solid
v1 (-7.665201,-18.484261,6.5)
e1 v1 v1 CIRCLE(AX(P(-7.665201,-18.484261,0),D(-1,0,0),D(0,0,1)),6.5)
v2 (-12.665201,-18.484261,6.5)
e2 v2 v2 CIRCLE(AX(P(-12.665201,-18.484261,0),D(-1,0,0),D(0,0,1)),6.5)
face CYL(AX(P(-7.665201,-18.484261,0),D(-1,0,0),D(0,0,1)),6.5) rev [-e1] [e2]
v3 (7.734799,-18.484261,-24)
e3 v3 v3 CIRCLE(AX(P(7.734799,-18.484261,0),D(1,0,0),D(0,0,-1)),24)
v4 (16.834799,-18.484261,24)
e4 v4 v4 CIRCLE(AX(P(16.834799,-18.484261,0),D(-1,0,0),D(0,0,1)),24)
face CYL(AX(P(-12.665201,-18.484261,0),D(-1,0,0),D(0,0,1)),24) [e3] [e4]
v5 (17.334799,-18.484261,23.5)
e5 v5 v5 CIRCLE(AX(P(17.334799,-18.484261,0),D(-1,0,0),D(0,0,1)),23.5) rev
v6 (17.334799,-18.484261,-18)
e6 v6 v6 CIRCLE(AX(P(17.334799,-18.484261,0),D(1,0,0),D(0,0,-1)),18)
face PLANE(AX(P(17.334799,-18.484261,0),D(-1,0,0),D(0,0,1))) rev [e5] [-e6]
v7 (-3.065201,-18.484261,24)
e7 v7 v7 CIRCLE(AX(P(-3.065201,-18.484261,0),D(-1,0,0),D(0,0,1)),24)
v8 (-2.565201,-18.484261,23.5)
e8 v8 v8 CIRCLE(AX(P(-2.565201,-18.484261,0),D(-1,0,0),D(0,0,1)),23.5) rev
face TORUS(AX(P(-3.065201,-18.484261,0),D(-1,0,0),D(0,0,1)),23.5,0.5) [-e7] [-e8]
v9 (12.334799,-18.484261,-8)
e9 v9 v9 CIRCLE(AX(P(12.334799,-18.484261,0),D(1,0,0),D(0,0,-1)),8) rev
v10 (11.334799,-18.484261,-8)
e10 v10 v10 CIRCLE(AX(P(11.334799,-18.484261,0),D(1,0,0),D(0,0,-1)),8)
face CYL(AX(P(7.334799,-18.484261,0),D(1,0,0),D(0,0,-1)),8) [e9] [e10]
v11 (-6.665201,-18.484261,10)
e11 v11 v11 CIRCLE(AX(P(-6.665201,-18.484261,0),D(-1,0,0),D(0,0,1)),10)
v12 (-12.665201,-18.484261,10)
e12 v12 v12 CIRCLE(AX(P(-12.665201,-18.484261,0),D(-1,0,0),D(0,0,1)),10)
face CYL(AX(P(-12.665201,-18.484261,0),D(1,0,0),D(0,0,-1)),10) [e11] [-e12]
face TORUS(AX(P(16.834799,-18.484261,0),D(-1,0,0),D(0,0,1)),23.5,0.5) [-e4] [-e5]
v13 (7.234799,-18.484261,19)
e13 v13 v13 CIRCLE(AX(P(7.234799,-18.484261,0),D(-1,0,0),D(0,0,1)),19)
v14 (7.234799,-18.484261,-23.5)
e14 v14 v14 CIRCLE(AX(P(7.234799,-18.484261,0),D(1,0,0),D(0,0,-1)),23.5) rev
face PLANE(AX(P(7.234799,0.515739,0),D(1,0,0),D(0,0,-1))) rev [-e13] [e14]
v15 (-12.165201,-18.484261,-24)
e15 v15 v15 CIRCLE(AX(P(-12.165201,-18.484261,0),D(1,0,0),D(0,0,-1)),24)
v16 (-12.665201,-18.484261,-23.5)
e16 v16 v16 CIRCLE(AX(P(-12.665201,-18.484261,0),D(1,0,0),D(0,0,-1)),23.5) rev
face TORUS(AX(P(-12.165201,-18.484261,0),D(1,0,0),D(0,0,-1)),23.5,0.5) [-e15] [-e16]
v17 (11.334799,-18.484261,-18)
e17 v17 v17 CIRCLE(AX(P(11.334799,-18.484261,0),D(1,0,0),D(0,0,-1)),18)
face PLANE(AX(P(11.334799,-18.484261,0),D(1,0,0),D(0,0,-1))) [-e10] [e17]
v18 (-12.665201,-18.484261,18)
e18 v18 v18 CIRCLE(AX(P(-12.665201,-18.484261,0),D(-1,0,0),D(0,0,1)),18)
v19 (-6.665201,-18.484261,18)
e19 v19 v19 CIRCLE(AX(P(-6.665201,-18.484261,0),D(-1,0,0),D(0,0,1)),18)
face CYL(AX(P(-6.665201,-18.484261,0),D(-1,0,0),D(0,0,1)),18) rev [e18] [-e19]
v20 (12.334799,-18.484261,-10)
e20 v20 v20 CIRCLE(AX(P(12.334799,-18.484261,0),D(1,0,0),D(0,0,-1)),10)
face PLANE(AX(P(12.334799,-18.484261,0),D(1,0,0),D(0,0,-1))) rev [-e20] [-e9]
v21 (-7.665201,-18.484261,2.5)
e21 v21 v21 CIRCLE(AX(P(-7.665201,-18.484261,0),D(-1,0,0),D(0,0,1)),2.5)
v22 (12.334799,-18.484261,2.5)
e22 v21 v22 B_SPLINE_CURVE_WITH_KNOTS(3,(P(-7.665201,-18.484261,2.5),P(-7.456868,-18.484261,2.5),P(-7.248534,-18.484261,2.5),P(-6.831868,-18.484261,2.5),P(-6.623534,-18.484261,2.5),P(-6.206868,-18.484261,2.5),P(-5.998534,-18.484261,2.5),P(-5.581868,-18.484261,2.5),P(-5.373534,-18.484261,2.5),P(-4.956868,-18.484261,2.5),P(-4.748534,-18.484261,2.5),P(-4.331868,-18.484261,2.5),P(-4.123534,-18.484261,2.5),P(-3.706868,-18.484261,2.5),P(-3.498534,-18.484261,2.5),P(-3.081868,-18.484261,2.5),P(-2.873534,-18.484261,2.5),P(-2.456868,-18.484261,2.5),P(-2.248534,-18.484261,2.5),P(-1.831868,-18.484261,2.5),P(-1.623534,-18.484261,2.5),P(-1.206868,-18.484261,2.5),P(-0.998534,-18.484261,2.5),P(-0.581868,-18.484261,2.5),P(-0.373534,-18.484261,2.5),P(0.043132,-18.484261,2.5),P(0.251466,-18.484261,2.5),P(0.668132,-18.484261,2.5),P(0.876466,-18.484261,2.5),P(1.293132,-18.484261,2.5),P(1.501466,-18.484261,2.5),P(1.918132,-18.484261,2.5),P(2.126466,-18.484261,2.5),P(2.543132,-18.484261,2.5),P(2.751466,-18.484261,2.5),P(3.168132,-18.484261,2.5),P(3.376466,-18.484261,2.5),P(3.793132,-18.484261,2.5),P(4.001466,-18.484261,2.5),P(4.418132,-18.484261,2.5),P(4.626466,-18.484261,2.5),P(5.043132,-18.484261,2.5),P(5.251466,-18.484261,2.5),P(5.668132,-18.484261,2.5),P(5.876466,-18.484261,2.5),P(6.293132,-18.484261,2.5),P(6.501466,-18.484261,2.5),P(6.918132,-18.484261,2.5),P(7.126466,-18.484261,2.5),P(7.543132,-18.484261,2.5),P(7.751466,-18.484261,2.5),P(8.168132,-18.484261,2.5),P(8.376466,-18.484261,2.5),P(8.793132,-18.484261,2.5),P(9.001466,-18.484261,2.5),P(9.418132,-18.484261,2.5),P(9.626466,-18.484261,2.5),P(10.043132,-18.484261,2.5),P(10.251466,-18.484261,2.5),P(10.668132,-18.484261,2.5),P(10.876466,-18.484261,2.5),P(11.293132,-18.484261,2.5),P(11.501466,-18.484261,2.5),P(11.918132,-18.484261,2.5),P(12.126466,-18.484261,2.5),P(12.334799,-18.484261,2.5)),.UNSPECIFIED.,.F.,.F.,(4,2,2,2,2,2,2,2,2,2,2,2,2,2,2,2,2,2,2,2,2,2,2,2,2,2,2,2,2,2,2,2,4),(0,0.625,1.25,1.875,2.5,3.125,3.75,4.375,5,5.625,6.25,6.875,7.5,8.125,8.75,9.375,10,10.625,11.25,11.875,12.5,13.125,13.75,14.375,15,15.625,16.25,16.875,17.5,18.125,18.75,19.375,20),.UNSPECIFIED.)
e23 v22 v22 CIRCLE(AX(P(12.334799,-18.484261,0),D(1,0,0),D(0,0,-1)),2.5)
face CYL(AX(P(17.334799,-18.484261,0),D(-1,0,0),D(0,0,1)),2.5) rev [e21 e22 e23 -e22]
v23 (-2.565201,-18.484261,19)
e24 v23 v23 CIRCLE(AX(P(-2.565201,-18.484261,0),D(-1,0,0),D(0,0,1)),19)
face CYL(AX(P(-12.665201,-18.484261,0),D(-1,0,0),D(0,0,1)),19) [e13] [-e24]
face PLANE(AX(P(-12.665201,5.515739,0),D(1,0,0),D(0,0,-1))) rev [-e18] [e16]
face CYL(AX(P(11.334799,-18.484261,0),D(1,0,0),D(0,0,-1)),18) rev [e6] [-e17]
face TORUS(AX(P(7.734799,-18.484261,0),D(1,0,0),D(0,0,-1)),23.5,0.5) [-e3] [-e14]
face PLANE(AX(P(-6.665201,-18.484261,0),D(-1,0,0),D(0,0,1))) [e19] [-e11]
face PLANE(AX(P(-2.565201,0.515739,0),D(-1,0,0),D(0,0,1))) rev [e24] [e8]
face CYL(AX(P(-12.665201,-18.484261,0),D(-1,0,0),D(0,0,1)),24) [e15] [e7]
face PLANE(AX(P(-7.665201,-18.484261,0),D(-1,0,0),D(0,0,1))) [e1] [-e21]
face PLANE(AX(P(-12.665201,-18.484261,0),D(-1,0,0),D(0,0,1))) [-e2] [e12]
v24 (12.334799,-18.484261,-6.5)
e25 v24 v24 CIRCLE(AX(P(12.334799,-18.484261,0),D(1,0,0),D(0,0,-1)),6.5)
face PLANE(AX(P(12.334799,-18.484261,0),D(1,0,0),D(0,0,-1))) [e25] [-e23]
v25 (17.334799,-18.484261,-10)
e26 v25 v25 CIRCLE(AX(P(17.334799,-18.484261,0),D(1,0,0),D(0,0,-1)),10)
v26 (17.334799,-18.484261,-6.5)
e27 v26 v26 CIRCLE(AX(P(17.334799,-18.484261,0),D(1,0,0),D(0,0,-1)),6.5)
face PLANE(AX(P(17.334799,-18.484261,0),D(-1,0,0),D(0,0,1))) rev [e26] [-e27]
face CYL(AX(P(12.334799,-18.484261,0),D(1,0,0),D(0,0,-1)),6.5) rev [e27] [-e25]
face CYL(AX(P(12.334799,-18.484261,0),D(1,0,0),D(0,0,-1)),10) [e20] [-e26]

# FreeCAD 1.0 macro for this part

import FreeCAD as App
import Part
import Sketcher

V = App.Vector


def edges_at(feature, points):
    """Names of the edges that pass closest to the given points."""
    edges = feature.Shape.Edges
    near = lambda p: min(range(len(edges)), key=lambda i: edges[i].distToShape(Part.Vertex(*p))[0])
    return sorted({f"Edge{near(p) + 1}" for p in points})


def add_polygon(sketch, points):
    """Adds a closed chain of lines whose ends are joined by coincident constraints."""
    first, n = sketch.GeometryCount, len(points)
    for a, b in zip(points, points[1:] + points[:1]):
        sketch.addGeometry(Part.LineSegment(App.Vector(*a, 0), App.Vector(*b, 0)), False)
    for i in range(n):
        sketch.addConstraint(Sketcher.Constraint("Coincident", first + i, 2, first + (i + 1) % n, 1))

doc = App.newDocument("Part")
params = doc.addObject("Spreadsheet::Sheet", "Params")
for row, (alias, value) in enumerate([
    ("sketch1_width", "30 mm"),
    ("sketch1_height", "5 mm"),
    ("sketch1_height2", "24 mm"),
    ("sketch1_width2", "9.8 mm"),
    ("revolution_angle", "360 deg"),
    ("sketch2_diameter", "4 mm"),
    ("fillet_radius", "0.5 mm"),
    ("sketch3_diameter", "36 mm"),
    ("sketch3_diameter2", "12 mm"),
    ("pocket2_length", "6 mm"),
    ("sketch4_diameter", "36 mm"),
    ("pocket3_length", "6 mm"),
    ("sketch5_diameter", "20 mm"),
    ("pad1_length", "6 mm"),
    ("sketch6_diameter", "16 mm"),
    ("pad2_length", "10 mm"),
    ("sketch7_diameter", "13 mm"),
    ("pocket4_length", "5 mm"),
    ("sketch8_diameter", "20 mm"),
    ("pad3_length", "5 mm"),
    ("sketch9_diameter", "13 mm"),
    ("pocket5_length", "5 mm"),
    ("sketch10_diameter", "5 mm"),
], start=1):
    params.set(f"A{row}", alias)
    params.set(f"B{row}", "=" + value)
    params.setAlias(f"B{row}", alias)

body = doc.addObject("PartDesign::Body", "Body")

# Sketch on XY plane
sketch1 = body.newObject("Sketcher::SketchObject", "Sketch")
sketch1.AttachmentSupport = (doc.getObject("XY_Plane"), [""])
sketch1.MapMode = "FlatFace"
add_polygon(sketch1, [(7, 1), (-3, 1), (-3, 6), (-13, 6), (-13, -18), (17, -18), (17, 6), (7, 6)])  # lines 0-7
sketch1.addGeometry(Part.LineSegment(V(-13, -18, 0), V(17, -18, 0)), True)  # axis
sketch1.addConstraint([
    Sketcher.Constraint("Horizontal", 0),
    Sketcher.Constraint("Vertical", 1),
    Sketcher.Constraint("Horizontal", 2),
    Sketcher.Constraint("Vertical", 3),
    Sketcher.Constraint("Horizontal", 4),
    Sketcher.Constraint("Vertical", 5),
    Sketcher.Constraint("Horizontal", 6),
    Sketcher.Constraint("Vertical", 7),
    Sketcher.Constraint("Horizontal", 8),
    Sketcher.Constraint("Coincident", 8, 1, 3, 2),
    Sketcher.Constraint("Horizontal", 2, 2, 5, 2),
    Sketcher.Constraint("Vertical", 5, 2, 8, 2),
    Sketcher.Constraint("Equal", 2, 6),
    Sketcher.Constraint("DistanceX", 4, 1, 4, 2, 30.0),
    Sketcher.Constraint("DistanceY", 1, 1, 1, 2, 5.0),
    Sketcher.Constraint("DistanceY", 3, 2, 3, 1, 24.0),
    Sketcher.Constraint("DistanceX", 0, 2, 0, 1, 9.8),
    Sketcher.Constraint("DistanceX", 0, 2, -1, 1, 2.565201),
    Sketcher.Constraint("DistanceY", -1, 1, 0, 2, 0.515739),
])
sketch1.setExpression("Constraints[21]", "Params.sketch1_width")
sketch1.setExpression("Constraints[22]", "Params.sketch1_height")
sketch1.setExpression("Constraints[23]", "Params.sketch1_height2")
sketch1.setExpression("Constraints[24]", "Params.sketch1_width2")
revolution = body.newObject("PartDesign::Revolution", "Revolution")
revolution.Profile = sketch1
revolution.ReferenceAxis = (sketch1, ["Axis0"])
revolution.setExpression("Angle", "Params.revolution_angle")

# Sketch on YZ plane
sketch2 = body.newObject("Sketcher::SketchObject", "Sketch001")
sketch2.AttachmentSupport = (doc.getObject("YZ_Plane"), [""])
sketch2.MapMode = "FlatFace"
sketch2.AttachmentOffset = App.Placement(V(0, 0, 17.334799), App.Rotation())
sketch2.addGeometry(Part.Circle(V(-18.5, 0, 0), V(0, 0, 1), 2), False)
sketch2.addConstraint([
    Sketcher.Constraint("PointOnObject", 0, 3, -1),
    Sketcher.Constraint("Diameter", 0, 4.0),
    Sketcher.Constraint("DistanceX", 0, 3, -1, 1, 18.484261),
])
sketch2.setExpression("Constraints[1]", "Params.sketch2_diameter")
pocket1 = body.newObject("PartDesign::Pocket", "Pocket")
pocket1.Profile = sketch2
pocket1.Type = "ThroughAll"
doc.recompute()

fillet = body.newObject("PartDesign::Fillet", "Fillet")
fillet.Base = (pocket1, edges_at(pocket1, [
    (-2.565, -18.484, -24),
    (7.235, -18.484, -24),
    (17.335, -18.484, -24),
    (-12.665, -18.484, -24),
]))
fillet.setExpression("Radius", "Params.fillet_radius")

# Sketch on YZ plane
sketch3 = body.newObject("Sketcher::SketchObject", "Sketch002")
sketch3.AttachmentSupport = (doc.getObject("YZ_Plane"), [""])
sketch3.MapMode = "FlatFace"
sketch3.AttachmentOffset = App.Placement(V(0, 0, 17.334799), App.Rotation())
sketch3.addGeometry([
    Part.Circle(V(-18, 0, 0), V(0, 0, 1), 18),
    Part.Circle(V(-18, 0, 0), V(0, 0, 1), 6),
], False)
sketch3.addConstraint([
    Sketcher.Constraint("Coincident", 1, 3, 0, 3),
    Sketcher.Constraint("PointOnObject", 0, 3, -1),
    Sketcher.Constraint("Diameter", 0, 36.0),
    Sketcher.Constraint("Diameter", 1, 12.0),
    Sketcher.Constraint("DistanceX", 0, 3, -1, 1, 18.484261),
])
sketch3.setExpression("Constraints[2]", "Params.sketch3_diameter")
sketch3.setExpression("Constraints[3]", "Params.sketch3_diameter2")
pocket2 = body.newObject("PartDesign::Pocket", "Pocket001")
pocket2.Profile = sketch3
pocket2.setExpression("Length", "Params.pocket2_length")

# Sketch on YZ plane
sketch4 = body.newObject("Sketcher::SketchObject", "Sketch003")
sketch4.AttachmentSupport = (doc.getObject("YZ_Plane"), [""])
sketch4.MapMode = "FlatFace"
sketch4.AttachmentOffset = App.Placement(V(0, 0, -6.665201), App.Rotation())
sketch4.addGeometry(Part.Circle(V(-18, 0, 0), V(0, 0, 1), 18), False)
sketch4.addConstraint([
    Sketcher.Constraint("PointOnObject", 0, 3, -1),
    Sketcher.Constraint("Diameter", 0, 36.0),
    Sketcher.Constraint("DistanceX", 0, 3, -1, 1, 18.484261),
])
sketch4.setExpression("Constraints[1]", "Params.sketch4_diameter")
pocket3 = body.newObject("PartDesign::Pocket", "Pocket002")
pocket3.Profile = sketch4
pocket3.setExpression("Length", "Params.pocket3_length")

# Sketch on YZ plane
sketch5 = body.newObject("Sketcher::SketchObject", "Sketch004")
sketch5.AttachmentSupport = (doc.getObject("YZ_Plane"), [""])
sketch5.MapMode = "FlatFace"
sketch5.AttachmentOffset = App.Placement(V(0, 0, -6.665201), App.Rotation())
sketch5.addGeometry(Part.Circle(V(-18, 0, 0), V(0, 0, 1), 10), False)
sketch5.addConstraint([
    Sketcher.Constraint("PointOnObject", 0, 3, -1),
    Sketcher.Constraint("Diameter", 0, 20.0),
    Sketcher.Constraint("DistanceX", 0, 3, -1, 1, 18.484261),
])
sketch5.setExpression("Constraints[1]", "Params.sketch5_diameter")
pad1 = body.newObject("PartDesign::Pad", "Pad")
pad1.Profile = sketch5
pad1.setExpression("Length", "Params.pad1_length")
pad1.Reversed = True

# Sketch on YZ plane
sketch6 = body.newObject("Sketcher::SketchObject", "Sketch005")
sketch6.AttachmentSupport = (doc.getObject("YZ_Plane"), [""])
sketch6.MapMode = "FlatFace"
sketch6.AttachmentOffset = App.Placement(V(0, 0, 17.334799), App.Rotation())
sketch6.addGeometry(Part.Circle(V(-18, 0, 0), V(0, 0, 1), 8), False)
sketch6.addConstraint([
    Sketcher.Constraint("PointOnObject", 0, 3, -1),
    Sketcher.Constraint("Diameter", 0, 16.0),
    Sketcher.Constraint("DistanceX", 0, 3, -1, 1, 18.484261),
])
sketch6.setExpression("Constraints[1]", "Params.sketch6_diameter")
pad2 = body.newObject("PartDesign::Pad", "Pad001")
pad2.Profile = sketch6
pad2.setExpression("Length", "Params.pad2_length")
pad2.Reversed = True

# Sketch on YZ plane
sketch7 = body.newObject("Sketcher::SketchObject", "Sketch006")
sketch7.AttachmentSupport = (doc.getObject("YZ_Plane"), [""])
sketch7.MapMode = "FlatFace"
sketch7.AttachmentOffset = App.Placement(V(0, 0, -12.665201), App.Rotation())
sketch7.addGeometry(Part.Circle(V(-18, 0, 0), V(0, 0, 1), 6), False)
sketch7.addConstraint([
    Sketcher.Constraint("PointOnObject", 0, 3, -1),
    Sketcher.Constraint("Diameter", 0, 13.0),
    Sketcher.Constraint("DistanceX", 0, 3, -1, 1, 18.484261),
])
sketch7.setExpression("Constraints[1]", "Params.sketch7_diameter")
pocket4 = body.newObject("PartDesign::Pocket", "Pocket003")
pocket4.Profile = sketch7
pocket4.setExpression("Length", "Params.pocket4_length")
pocket4.Reversed = True

# Sketch on YZ plane
sketch8 = body.newObject("Sketcher::SketchObject", "Sketch007")
sketch8.AttachmentSupport = (doc.getObject("YZ_Plane"), [""])
sketch8.MapMode = "FlatFace"
sketch8.AttachmentOffset = App.Placement(V(0, 0, 17.334799), App.Rotation())
sketch8.addGeometry(Part.Circle(V(-18, 0, 0), V(0, 0, 1), 10), False)
sketch8.addConstraint([
    Sketcher.Constraint("PointOnObject", 0, 3, -1),
    Sketcher.Constraint("Diameter", 0, 20.0),
    Sketcher.Constraint("DistanceX", 0, 3, -1, 1, 18.484261),
])
sketch8.setExpression("Constraints[1]", "Params.sketch8_diameter")
pad3 = body.newObject("PartDesign::Pad", "Pad002")
pad3.Profile = sketch8
pad3.setExpression("Length", "Params.pad3_length")
pad3.Reversed = True

# Sketch on YZ plane
sketch9 = body.newObject("Sketcher::SketchObject", "Sketch008")
sketch9.AttachmentSupport = (doc.getObject("YZ_Plane"), [""])
sketch9.MapMode = "FlatFace"
sketch9.AttachmentOffset = App.Placement(V(0, 0, 12.334799), App.Rotation())
sketch9.addGeometry(Part.Circle(V(-18, 0, 0), V(0, 0, 1), 6), False)
sketch9.addConstraint([
    Sketcher.Constraint("PointOnObject", 0, 3, -1),
    Sketcher.Constraint("Diameter", 0, 13.0),
    Sketcher.Constraint("DistanceX", 0, 3, -1, 1, 18.484261),
])
sketch9.setExpression("Constraints[1]", "Params.sketch9_diameter")
pocket5 = body.newObject("PartDesign::Pocket", "Pocket004")
pocket5.Profile = sketch9
pocket5.setExpression("Length", "Params.pocket5_length")
pocket5.Reversed = True

# Sketch on YZ plane
sketch10 = body.newObject("Sketcher::SketchObject", "Sketch009")
sketch10.AttachmentSupport = (doc.getObject("YZ_Plane"), [""])
sketch10.MapMode = "FlatFace"
sketch10.AttachmentOffset = App.Placement(V(0, 0, -12.665201), App.Rotation())
sketch10.addGeometry(Part.Circle(V(-18.5, 0, 0), V(0, 0, 1), 2.5), False)
sketch10.addConstraint([
    Sketcher.Constraint("PointOnObject", 0, 3, -1),
    Sketcher.Constraint("Diameter", 0, 5.0),
    Sketcher.Constraint("DistanceX", 0, 3, -1, 1, 18.484261),
])
sketch10.setExpression("Constraints[1]", "Params.sketch10_diameter")
pocket6 = body.newObject("PartDesign::Pocket", "Pocket005")
pocket6.Profile = sketch10
pocket6.Type = "ThroughAll"
pocket6.Reversed = True

doc.recompute()
